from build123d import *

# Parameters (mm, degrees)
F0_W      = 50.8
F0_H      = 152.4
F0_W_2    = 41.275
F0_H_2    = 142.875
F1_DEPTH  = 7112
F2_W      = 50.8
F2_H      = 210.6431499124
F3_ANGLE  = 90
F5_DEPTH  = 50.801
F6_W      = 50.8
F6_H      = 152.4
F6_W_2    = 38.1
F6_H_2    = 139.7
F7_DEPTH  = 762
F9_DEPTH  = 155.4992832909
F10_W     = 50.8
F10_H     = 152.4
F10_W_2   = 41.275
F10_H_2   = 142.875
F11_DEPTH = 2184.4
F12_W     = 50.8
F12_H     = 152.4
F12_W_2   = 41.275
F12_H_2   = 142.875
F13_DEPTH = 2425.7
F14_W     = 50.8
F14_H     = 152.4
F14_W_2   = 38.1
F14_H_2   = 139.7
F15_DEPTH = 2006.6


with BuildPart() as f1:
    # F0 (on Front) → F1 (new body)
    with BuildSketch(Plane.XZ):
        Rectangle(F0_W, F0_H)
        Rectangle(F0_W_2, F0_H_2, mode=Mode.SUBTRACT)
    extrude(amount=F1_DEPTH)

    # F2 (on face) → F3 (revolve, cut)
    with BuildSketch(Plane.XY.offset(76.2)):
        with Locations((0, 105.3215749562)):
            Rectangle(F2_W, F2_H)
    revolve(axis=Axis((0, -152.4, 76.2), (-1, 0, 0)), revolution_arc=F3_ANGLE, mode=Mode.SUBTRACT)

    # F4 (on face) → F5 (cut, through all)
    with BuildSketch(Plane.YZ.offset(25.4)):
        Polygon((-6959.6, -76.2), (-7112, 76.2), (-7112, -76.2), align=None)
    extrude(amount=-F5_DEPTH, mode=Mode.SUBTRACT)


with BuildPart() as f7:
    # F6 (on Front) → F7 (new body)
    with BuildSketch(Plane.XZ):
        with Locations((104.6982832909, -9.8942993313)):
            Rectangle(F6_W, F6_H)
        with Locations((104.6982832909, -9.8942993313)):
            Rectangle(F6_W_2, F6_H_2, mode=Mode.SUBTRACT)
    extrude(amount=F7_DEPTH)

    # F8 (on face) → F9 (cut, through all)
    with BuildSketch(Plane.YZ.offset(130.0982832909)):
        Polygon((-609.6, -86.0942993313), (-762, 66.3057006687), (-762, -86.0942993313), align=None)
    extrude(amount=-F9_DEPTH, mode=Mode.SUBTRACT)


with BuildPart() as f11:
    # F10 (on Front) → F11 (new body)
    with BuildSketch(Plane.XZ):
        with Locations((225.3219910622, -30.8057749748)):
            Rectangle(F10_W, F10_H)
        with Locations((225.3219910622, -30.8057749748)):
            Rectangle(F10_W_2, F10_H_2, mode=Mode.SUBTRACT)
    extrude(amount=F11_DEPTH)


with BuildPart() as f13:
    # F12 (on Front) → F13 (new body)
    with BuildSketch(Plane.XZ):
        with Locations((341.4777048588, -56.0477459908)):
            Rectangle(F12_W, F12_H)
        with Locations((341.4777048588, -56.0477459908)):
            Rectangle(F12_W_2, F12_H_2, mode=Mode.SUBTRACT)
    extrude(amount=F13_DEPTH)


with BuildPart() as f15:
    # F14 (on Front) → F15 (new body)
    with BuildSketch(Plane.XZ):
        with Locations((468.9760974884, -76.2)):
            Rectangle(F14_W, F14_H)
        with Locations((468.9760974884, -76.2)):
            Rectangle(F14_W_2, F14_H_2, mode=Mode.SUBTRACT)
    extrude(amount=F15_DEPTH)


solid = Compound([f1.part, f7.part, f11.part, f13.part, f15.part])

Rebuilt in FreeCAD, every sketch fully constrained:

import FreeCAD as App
import Part
import Sketcher
Q = App.Units.Quantity

doc = App.newDocument("Part")
body = doc.addObject("PartDesign::Body", "Body")

# Sketch on XZ plane
sketch1 = body.newObject("Sketcher::SketchObject", "Sketch")
sketch1.AttachmentSupport = (doc.getObject("XZ_Plane"), [""])
sketch1.MapMode = "FlatFace"
sketch1.addGeometry([
    Part.LineSegment(App.Vector(-25.4, 76.2, 0), App.Vector(-25.4, -76.2, 0)),  # 0
    Part.LineSegment(App.Vector(-25.4, -76.2, 0), App.Vector(25.4, -76.2, 0)),  # 1
    Part.LineSegment(App.Vector(25.4, -76.2, 0), App.Vector(25.4, 76.2, 0)),  # 2
    Part.LineSegment(App.Vector(25.4, 76.2, 0), App.Vector(-25.4, 76.2, 0)),  # 3
    Part.LineSegment(App.Vector(20.6375, -71.4375, 0), App.Vector(-20.6375, -71.4375, 0)),  # 4
    Part.LineSegment(App.Vector(-20.6375, -71.4375, 0), App.Vector(-20.6375, 71.4375, 0)),  # 5
    Part.LineSegment(App.Vector(-20.6375, 71.4375, 0), App.Vector(20.6375, 71.4375, 0)),  # 6
    Part.LineSegment(App.Vector(20.6375, 71.4375, 0), App.Vector(20.6375, -71.4375, 0)),  # 7
], False)
sketch1.addConstraint([
    Sketcher.Constraint("Coincident", 0, 2, 1, 1),
    Sketcher.Constraint("Coincident", 1, 2, 2, 1),
    Sketcher.Constraint("Coincident", 2, 2, 3, 1),
    Sketcher.Constraint("Coincident", 3, 2, 0, 1),
    Sketcher.Constraint("Coincident", 4, 2, 5, 1),
    Sketcher.Constraint("Coincident", 5, 2, 6, 1),
    Sketcher.Constraint("Coincident", 6, 2, 7, 1),
    Sketcher.Constraint("Coincident", 7, 2, 4, 1),
    Sketcher.Constraint("Vertical", 0),
    Sketcher.Constraint("Horizontal", 1),
    Sketcher.Constraint("Vertical", 2),
    Sketcher.Constraint("Horizontal", 3),
    Sketcher.Constraint("Horizontal", 4),
    Sketcher.Constraint("Vertical", 5),
    Sketcher.Constraint("Horizontal", 6),
    Sketcher.Constraint("Vertical", 7),
    Sketcher.Constraint("Symmetric", 0, 2, 2, 2, -1, 1),
    Sketcher.Constraint("Symmetric", 4, 2, 6, 2, -1, 1),
    Sketcher.Constraint("DistanceX", 1, 1, 1, 2, Q("2 in")),
    Sketcher.Constraint("DistanceY", 0, 2, 0, 1, Q("6 in")),
    Sketcher.Constraint("DistanceX", 4, 2, 4, 1, Q("1.625 in")),
    Sketcher.Constraint("DistanceY", 5, 1, 5, 2, Q("5.625 in")),
])
pad1 = body.newObject("PartDesign::Pad", "Pad")
pad1.Profile = sketch1
pad1.Length = Q("280 in")

# Sketch on XY plane
sketch2 = body.newObject("Sketcher::SketchObject", "Sketch001")
sketch2.AttachmentSupport = (doc.getObject("XY_Plane"), [""])
sketch2.MapMode = "FlatFace"
sketch2.AttachmentOffset = App.Placement(App.Vector(0, 0, 3 * 25.4), App.Rotation())
sketch2.addGeometry([
    Part.LineSegment(App.Vector(-25.4, 210.64315, 0), App.Vector(-25.4, 0, 0)),
    Part.LineSegment(App.Vector(-25.4, 0, 0), App.Vector(25.4, 0, 0)),
    Part.LineSegment(App.Vector(25.4, 0, 0), App.Vector(25.4, 210.64315, 0)),
    Part.LineSegment(App.Vector(25.4, 210.64315, 0), App.Vector(-25.4, 210.64315, 0)),
], False)
sketch2.addGeometry(Part.LineSegment(App.Vector(25.4, -152.4, 0), App.Vector(-25.4, -152.4, 0)), True)  # axis
sketch2.addConstraint([
    Sketcher.Constraint("Coincident", 0, 2, 1, 1),
    Sketcher.Constraint("Coincident", 1, 2, 2, 1),
    Sketcher.Constraint("Coincident", 2, 2, 3, 1),
    Sketcher.Constraint("Coincident", 3, 2, 0, 1),
    Sketcher.Constraint("Vertical", 0),
    Sketcher.Constraint("Horizontal", 1),
    Sketcher.Constraint("Vertical", 2),
    Sketcher.Constraint("Horizontal", 3),
    Sketcher.Constraint("Horizontal", 4),
    Sketcher.Constraint("Symmetric", 0, 2, 1, 2, -1, 1),
    Sketcher.Constraint("Vertical", 2, 2, 4, 1),
    Sketcher.Constraint("Vertical", 3, 2, 4, 2),
    Sketcher.Constraint("DistanceX", 1, 1, 1, 2, Q("2 in")),
    Sketcher.Constraint("DistanceY", 4, 1, -1, 1, Q("6 in")),
    Sketcher.Constraint("DistanceY", 0, 2, 0, 1, Q("210.64315 mm")),
])
groove = body.newObject("PartDesign::Groove", "Groove")
groove.Profile = sketch2
groove.ReferenceAxis = (sketch2, ["Axis0"])
groove.Angle = 90

# Sketch on YZ plane
sketch3 = body.newObject("Sketcher::SketchObject", "Sketch002")
sketch3.AttachmentSupport = (doc.getObject("YZ_Plane"), [""])
sketch3.MapMode = "FlatFace"
sketch3.AttachmentOffset = App.Placement(App.Vector(0, 0, 1 * 25.4), App.Rotation())
sketch3.addGeometry([
    Part.LineSegment(App.Vector(-6959.6, -76.2, 0), App.Vector(-7112, 76.2, 0)),
    Part.LineSegment(App.Vector(-7112, 76.2, 0), App.Vector(-7112, -76.2, 0)),
    Part.LineSegment(App.Vector(-7112, -76.2, 0), App.Vector(-6959.6, -76.2, 0)),
], False)
sketch3.addConstraint([
    Sketcher.Constraint("Coincident", 0, 2, 1, 1),
    Sketcher.Constraint("Coincident", 1, 2, 2, 1),
    Sketcher.Constraint("Coincident", 2, 2, 0, 1),
    Sketcher.Constraint("Vertical", 1),
    Sketcher.Constraint("Horizontal", 2),
    Sketcher.Constraint("Equal", 2, 1),
    Sketcher.Constraint("DistanceX", 2, 1, 2, 2, Q("6 in")),
    Sketcher.Constraint("DistanceX", 0, 2, -1, 1, Q("280 in")),
    Sketcher.Constraint("DistanceY", -1, 1, 0, 2, Q("3 in")),
])
pocket1 = body.newObject("PartDesign::Pocket", "Pocket")
pocket1.Profile = sketch3
pocket1.Type = "ThroughAll"
body2 = doc.addObject("PartDesign::Body", "Body001")

# Sketch on XZ plane
sketch4 = body2.newObject("Sketcher::SketchObject", "Sketch003")
sketch4.AttachmentSupport = (doc.getObject("XZ_Plane001"), [""])
sketch4.MapMode = "FlatFace"
sketch4.addGeometry([
    Part.LineSegment(App.Vector(79.298283, 66.305701, 0), App.Vector(79.298283, -86.094299, 0)),  # 0
    Part.LineSegment(App.Vector(79.298283, -86.094299, 0), App.Vector(130.098283, -86.094299, 0)),  # 1
    Part.LineSegment(App.Vector(130.098283, -86.094299, 0), App.Vector(130.098283, 66.305701, 0)),  # 2
    Part.LineSegment(App.Vector(130.098283, 66.305701, 0), App.Vector(79.298283, 66.305701, 0)),  # 3
    Part.LineSegment(App.Vector(123.748283, -79.744299, 0), App.Vector(85.648283, -79.744299, 0)),  # 4
    Part.LineSegment(App.Vector(85.648283, -79.744299, 0), App.Vector(85.648283, 59.955701, 0)),  # 5
    Part.LineSegment(App.Vector(85.648283, 59.955701, 0), App.Vector(123.748283, 59.955701, 0)),  # 6
    Part.LineSegment(App.Vector(123.748283, 59.955701, 0), App.Vector(123.748283, -79.744299, 0)),  # 7
], False)
sketch4.addConstraint([
    Sketcher.Constraint("Coincident", 0, 2, 1, 1),
    Sketcher.Constraint("Coincident", 1, 2, 2, 1),
    Sketcher.Constraint("Coincident", 2, 2, 3, 1),
    Sketcher.Constraint("Coincident", 3, 2, 0, 1),
    Sketcher.Constraint("Coincident", 4, 2, 5, 1),
    Sketcher.Constraint("Coincident", 5, 2, 6, 1),
    Sketcher.Constraint("Coincident", 6, 2, 7, 1),
    Sketcher.Constraint("Coincident", 7, 2, 4, 1),
    Sketcher.Constraint("Vertical", 0),
    Sketcher.Constraint("Horizontal", 1),
    Sketcher.Constraint("Vertical", 2),
    Sketcher.Constraint("Horizontal", 3),
    Sketcher.Constraint("Horizontal", 4),
    Sketcher.Constraint("Vertical", 5),
    Sketcher.Constraint("Horizontal", 6),
    Sketcher.Constraint("Vertical", 7),
    Sketcher.Constraint("DistanceX", 1, 1, 1, 2, Q("2 in")),
    Sketcher.Constraint("DistanceY", 0, 2, 0, 1, Q("6 in")),
    Sketcher.Constraint("DistanceX", 4, 2, 4, 1, Q("1.5 in")),
    Sketcher.Constraint("DistanceY", 5, 1, 5, 2, Q("5.5 in")),
    Sketcher.Constraint("DistanceX", 0, 2, 4, 2, Q("0.25 in")),
    Sketcher.Constraint("DistanceY", 0, 2, 4, 2, Q("0.25 in")),
    Sketcher.Constraint("DistanceY", 0, 2, -1, 1, Q("86.094299 mm")),
    Sketcher.Constraint("DistanceX", -1, 1, 0, 2, Q("79.298283 mm")),
])
pad2 = body2.newObject("PartDesign::Pad", "Pad001")
pad2.Profile = sketch4
pad2.Length = Q("30 in")

# Sketch on YZ plane
sketch5 = body2.newObject("Sketcher::SketchObject", "Sketch004")
sketch5.AttachmentSupport = (doc.getObject("YZ_Plane001"), [""])
sketch5.MapMode = "FlatFace"
sketch5.AttachmentOffset = App.Placement(App.Vector(0, 0, 130.098283), App.Rotation())
sketch5.addGeometry([
    Part.LineSegment(App.Vector(-609.6, -86.094299, 0), App.Vector(-762, 66.305701, 0)),
    Part.LineSegment(App.Vector(-762, 66.305701, 0), App.Vector(-762, -86.094299, 0)),
    Part.LineSegment(App.Vector(-762, -86.094299, 0), App.Vector(-609.6, -86.094299, 0)),
], False)
sketch5.addConstraint([
    Sketcher.Constraint("Coincident", 0, 2, 1, 1),
    Sketcher.Constraint("Coincident", 1, 2, 2, 1),
    Sketcher.Constraint("Coincident", 2, 2, 0, 1),
    Sketcher.Constraint("Vertical", 1),
    Sketcher.Constraint("Horizontal", 2),
    Sketcher.Constraint("Equal", 2, 1),
    Sketcher.Constraint("DistanceX", 2, 1, 2, 2, Q("6 in")),
    Sketcher.Constraint("DistanceX", 0, 2, -1, 1, Q("30 in")),
    Sketcher.Constraint("DistanceY", -1, 1, 0, 2, Q("66.305701 mm")),
])
pocket2 = body2.newObject("PartDesign::Pocket", "Pocket001")
pocket2.Profile = sketch5
pocket2.Type = "ThroughAll"
body3 = doc.addObject("PartDesign::Body", "Body002")

# Sketch on XZ plane
sketch6 = body3.newObject("Sketcher::SketchObject", "Sketch005")
sketch6.AttachmentSupport = (doc.getObject("XZ_Plane002"), [""])
sketch6.MapMode = "FlatFace"
sketch6.addGeometry([
    Part.LineSegment(App.Vector(199.921991, 45.394225, 0), App.Vector(199.921991, -107.005775, 0)),  # 0
    Part.LineSegment(App.Vector(199.921991, -107.005775, 0), App.Vector(250.721991, -107.005775, 0)),  # 1
    Part.LineSegment(App.Vector(250.721991, -107.005775, 0), App.Vector(250.721991, 45.394225, 0)),  # 2
    Part.LineSegment(App.Vector(250.721991, 45.394225, 0), App.Vector(199.921991, 45.394225, 0)),  # 3
    Part.LineSegment(App.Vector(245.959491, -102.243275, 0), App.Vector(204.684491, -102.243275, 0)),  # 4
    Part.LineSegment(App.Vector(204.684491, -102.243275, 0), App.Vector(204.684491, 40.631725, 0)),  # 5
    Part.LineSegment(App.Vector(204.684491, 40.631725, 0), App.Vector(245.959491, 40.631725, 0)),  # 6
    Part.LineSegment(App.Vector(245.959491, 40.631725, 0), App.Vector(245.959491, -102.243275, 0)),  # 7
], False)
sketch6.addConstraint([
    Sketcher.Constraint("Coincident", 0, 2, 1, 1),
    Sketcher.Constraint("Coincident", 1, 2, 2, 1),
    Sketcher.Constraint("Coincident", 2, 2, 3, 1),
    Sketcher.Constraint("Coincident", 3, 2, 0, 1),
    Sketcher.Constraint("Coincident", 4, 2, 5, 1),
    Sketcher.Constraint("Coincident", 5, 2, 6, 1),
    Sketcher.Constraint("Coincident", 6, 2, 7, 1),
    Sketcher.Constraint("Coincident", 7, 2, 4, 1),
    Sketcher.Constraint("Vertical", 0),
    Sketcher.Constraint("Horizontal", 1),
    Sketcher.Constraint("Vertical", 2),
    Sketcher.Constraint("Horizontal", 3),
    Sketcher.Constraint("Horizontal", 4),
    Sketcher.Constraint("Vertical", 5),
    Sketcher.Constraint("Horizontal", 6),
    Sketcher.Constraint("Vertical", 7),
    Sketcher.Constraint("DistanceX", 1, 1, 1, 2, Q("2 in")),
    Sketcher.Constraint("DistanceY", 0, 2, 0, 1, Q("6 in")),
    Sketcher.Constraint("DistanceX", 4, 2, 4, 1, Q("1.625 in")),
    Sketcher.Constraint("DistanceY", 5, 1, 5, 2, Q("5.625 in")),
    Sketcher.Constraint("DistanceX", 0, 2, 4, 2, Q("0.1875 in")),
    Sketcher.Constraint("DistanceY", 0, 2, 4, 2, Q("0.1875 in")),
    Sketcher.Constraint("DistanceX", -1, 1, 0, 2, Q("199.921991 mm")),
    Sketcher.Constraint("DistanceY", 0, 2, -1, 1, Q("107.005775 mm")),
])
pad3 = body3.newObject("PartDesign::Pad", "Pad002")
pad3.Profile = sketch6
pad3.Length = Q("86 in")
body4 = doc.addObject("PartDesign::Body", "Body003")

# Sketch on XZ plane
sketch7 = body4.newObject("Sketcher::SketchObject", "Sketch006")
sketch7.AttachmentSupport = (doc.getObject("XZ_Plane003"), [""])
sketch7.MapMode = "FlatFace"
sketch7.addGeometry([
    Part.LineSegment(App.Vector(316.077705, 20.152254, 0), App.Vector(316.077705, -132.247746, 0)),  # 0
    Part.LineSegment(App.Vector(316.077705, -132.247746, 0), App.Vector(366.877705, -132.247746, 0)),  # 1
    Part.LineSegment(App.Vector(366.877705, -132.247746, 0), App.Vector(366.877705, 20.152254, 0)),  # 2
    Part.LineSegment(App.Vector(366.877705, 20.152254, 0), App.Vector(316.077705, 20.152254, 0)),  # 3
    Part.LineSegment(App.Vector(362.115205, -127.485246, 0), App.Vector(320.840205, -127.485246, 0)),  # 4
    Part.LineSegment(App.Vector(320.840205, -127.485246, 0), App.Vector(320.840205, 15.389754, 0)),  # 5
    Part.LineSegment(App.Vector(320.840205, 15.389754, 0), App.Vector(362.115205, 15.389754, 0)),  # 6
    Part.LineSegment(App.Vector(362.115205, 15.389754, 0), App.Vector(362.115205, -127.485246, 0)),  # 7
], False)
sketch7.addConstraint([
    Sketcher.Constraint("Coincident", 0, 2, 1, 1),
    Sketcher.Constraint("Coincident", 1, 2, 2, 1),
    Sketcher.Constraint("Coincident", 2, 2, 3, 1),
    Sketcher.Constraint("Coincident", 3, 2, 0, 1),
    Sketcher.Constraint("Coincident", 4, 2, 5, 1),
    Sketcher.Constraint("Coincident", 5, 2, 6, 1),
    Sketcher.Constraint("Coincident", 6, 2, 7, 1),
    Sketcher.Constraint("Coincident", 7, 2, 4, 1),
    Sketcher.Constraint("Vertical", 0),
    Sketcher.Constraint("Horizontal", 1),
    Sketcher.Constraint("Vertical", 2),
    Sketcher.Constraint("Horizontal", 3),
    Sketcher.Constraint("Horizontal", 4),
    Sketcher.Constraint("Vertical", 5),
    Sketcher.Constraint("Horizontal", 6),
    Sketcher.Constraint("Vertical", 7),
    Sketcher.Constraint("DistanceX", 1, 1, 1, 2, Q("2 in")),
    Sketcher.Constraint("DistanceY", 0, 2, 0, 1, Q("6 in")),
    Sketcher.Constraint("DistanceX", 4, 2, 4, 1, Q("1.625 in")),
    Sketcher.Constraint("DistanceY", 5, 1, 5, 2, Q("5.625 in")),
    Sketcher.Constraint("DistanceX", 0, 2, 4, 2, Q("0.1875 in")),
    Sketcher.Constraint("DistanceY", 0, 2, 4, 2, Q("0.1875 in")),
    Sketcher.Constraint("DistanceX", -1, 1, 0, 2, Q("316.077705 mm")),
    Sketcher.Constraint("DistanceY", 0, 2, -1, 1, Q("132.247746 mm")),
])
pad4 = body4.newObject("PartDesign::Pad", "Pad003")
pad4.Profile = sketch7
pad4.Length = Q("95.5 in")
body5 = doc.addObject("PartDesign::Body", "Body004")

# Sketch on XZ plane
sketch8 = body5.newObject("Sketcher::SketchObject", "Sketch007")
sketch8.AttachmentSupport = (doc.getObject("XZ_Plane004"), [""])
sketch8.MapMode = "FlatFace"
sketch8.addGeometry([
    Part.LineSegment(App.Vector(443.576097, 0, 0), App.Vector(443.576097, -152.4, 0)),  # 0
    Part.LineSegment(App.Vector(443.576097, -152.4, 0), App.Vector(494.376097, -152.4, 0)),  # 1
    Part.LineSegment(App.Vector(494.376097, -152.4, 0), App.Vector(494.376097, 0, 0)),  # 2
    Part.LineSegment(App.Vector(494.376097, 0, 0), App.Vector(443.576097, 0, 0)),  # 3
    Part.LineSegment(App.Vector(488.026097, -146.05, 0), App.Vector(449.926097, -146.05, 0)),  # 4
    Part.LineSegment(App.Vector(449.926097, -146.05, 0), App.Vector(449.926097, -6.35, 0)),  # 5
    Part.LineSegment(App.Vector(449.926097, -6.35, 0), App.Vector(488.026097, -6.35, 0)),  # 6
    Part.LineSegment(App.Vector(488.026097, -6.35, 0), App.Vector(488.026097, -146.05, 0)),  # 7
], False)
sketch8.addConstraint([
    Sketcher.Constraint("Coincident", 0, 2, 1, 1),
    Sketcher.Constraint("Coincident", 1, 2, 2, 1),
    Sketcher.Constraint("Coincident", 2, 2, 3, 1),
    Sketcher.Constraint("Coincident", 3, 2, 0, 1),
    Sketcher.Constraint("Coincident", 4, 2, 5, 1),
    Sketcher.Constraint("Coincident", 5, 2, 6, 1),
    Sketcher.Constraint("Coincident", 6, 2, 7, 1),
    Sketcher.Constraint("Coincident", 7, 2, 4, 1),
    Sketcher.Constraint("Vertical", 0),
    Sketcher.Constraint("Horizontal", 1),
    Sketcher.Constraint("Vertical", 2),
    Sketcher.Constraint("Horizontal", 3),
    Sketcher.Constraint("Horizontal", 4),
    Sketcher.Constraint("Vertical", 5),
    Sketcher.Constraint("Horizontal", 6),
    Sketcher.Constraint("Vertical", 7),
    Sketcher.Constraint("PointOnObject", 2, 2, -1),
    Sketcher.Constraint("DistanceX", 1, 1, 1, 2, Q("2 in")),
    Sketcher.Constraint("DistanceY", 0, 2, 0, 1, Q("6 in")),
    Sketcher.Constraint("DistanceX", 4, 2, 4, 1, Q("1.5 in")),
    Sketcher.Constraint("DistanceY", 5, 1, 5, 2, Q("5.5 in")),
    Sketcher.Constraint("DistanceY", 4, 2, -1, 1, Q("5.75 in")),
    Sketcher.Constraint("DistanceX", 0, 2, 4, 2, Q("0.25 in")),
    Sketcher.Constraint("DistanceX", -1, 1, 0, 2, Q("443.576097 mm")),
])
pad5 = body5.newObject("PartDesign::Pad", "Pad004")
pad5.Profile = sketch8
pad5.Length = Q("79 in")

doc.recompute()
